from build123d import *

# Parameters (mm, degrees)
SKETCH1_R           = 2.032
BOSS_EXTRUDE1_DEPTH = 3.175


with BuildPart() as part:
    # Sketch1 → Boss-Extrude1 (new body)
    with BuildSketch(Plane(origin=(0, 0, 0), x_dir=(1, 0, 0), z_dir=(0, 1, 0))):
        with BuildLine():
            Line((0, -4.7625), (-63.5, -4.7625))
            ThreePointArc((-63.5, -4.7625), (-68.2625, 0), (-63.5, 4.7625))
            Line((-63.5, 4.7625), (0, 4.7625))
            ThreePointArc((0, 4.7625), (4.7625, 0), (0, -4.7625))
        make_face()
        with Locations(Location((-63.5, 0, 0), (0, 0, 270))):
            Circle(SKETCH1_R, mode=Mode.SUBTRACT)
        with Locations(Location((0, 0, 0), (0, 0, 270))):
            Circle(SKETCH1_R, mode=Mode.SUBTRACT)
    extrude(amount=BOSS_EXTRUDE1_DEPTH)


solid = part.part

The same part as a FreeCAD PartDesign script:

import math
import FreeCAD as App
import Part
import Sketcher
from FreeCAD import Vector
Q = App.Units.Quantity

doc = App.newDocument("Part")
body = doc.addObject("PartDesign::Body", "Body")

# Sketch on XZ plane
sketch1 = body.newObject("Sketcher::SketchObject", "Sketch")
sketch1.AttachmentSupport = (doc.getObject("XZ_Plane"), [""])
sketch1.MapMode = "FlatFace"
sketch1.addGeometry(Part.LineSegment(Vector(-63.5, 4.8, 0), Vector(0, 4.8, 0)), False)
sketch1.addGeometry(Part.ArcOfCircle(Part.Circle(Vector(0, 0, 0), Vector(0, 0, 1), 4.8), math.radians(-90), math.radians(90)), False)
sketch1.addGeometry(Part.LineSegment(Vector(0, -4.8, 0), Vector(-63.5, -4.8, 0)), False)
sketch1.addGeometry(Part.ArcOfCircle(Part.Circle(Vector(-63.5, 0, 0), Vector(0, 0, 1), 4.8), math.radians(90), math.radians(270)), False)
sketch1.addGeometry(Part.Circle(Vector(0, 0, 0), Vector(0, 0, 1), 2), False)
sketch1.addGeometry(Part.Circle(Vector(-63.5, 0, 0), Vector(0, 0, 1), 2), False)
sketch1.addConstraint(Sketcher.Constraint("Tangent", 0, 2, 1, 2))
sketch1.addConstraint(Sketcher.Constraint("Tangent", 1, 1, 2, 1))
sketch1.addConstraint(Sketcher.Constraint("Tangent", 2, 2, 3, 2))
sketch1.addConstraint(Sketcher.Constraint("Tangent", 3, 1, 0, 1))
sketch1.addConstraint(Sketcher.Constraint("Horizontal", 0))
sketch1.addConstraint(Sketcher.Constraint("Horizontal", 2))
sketch1.addConstraint(Sketcher.Constraint("Coincident", 1, 3, -1, 1))
sketch1.addConstraint(Sketcher.Constraint("Coincident", 4, 3, -1, 1))
sketch1.addConstraint(Sketcher.Constraint("Coincident", 5, 3, 3, 3))
sketch1.addConstraint(Sketcher.Constraint("Equal", 4, 5))
sketch1.addConstraint(Sketcher.Constraint("Diameter", 4, Q("0.16 in")))
sketch1.addConstraint(Sketcher.Constraint("DistanceX", 0, 1, 0, 2, Q("2.5 in")))
sketch1.addConstraint(Sketcher.Constraint("Radius", 1, Q("0.1875 in")))
pad1 = body.newObject("PartDesign::Pad", "Pad")
pad1.Profile = sketch1
pad1.Length = Q("0.125 in")
pad1.Reversed = True

doc.recompute()
